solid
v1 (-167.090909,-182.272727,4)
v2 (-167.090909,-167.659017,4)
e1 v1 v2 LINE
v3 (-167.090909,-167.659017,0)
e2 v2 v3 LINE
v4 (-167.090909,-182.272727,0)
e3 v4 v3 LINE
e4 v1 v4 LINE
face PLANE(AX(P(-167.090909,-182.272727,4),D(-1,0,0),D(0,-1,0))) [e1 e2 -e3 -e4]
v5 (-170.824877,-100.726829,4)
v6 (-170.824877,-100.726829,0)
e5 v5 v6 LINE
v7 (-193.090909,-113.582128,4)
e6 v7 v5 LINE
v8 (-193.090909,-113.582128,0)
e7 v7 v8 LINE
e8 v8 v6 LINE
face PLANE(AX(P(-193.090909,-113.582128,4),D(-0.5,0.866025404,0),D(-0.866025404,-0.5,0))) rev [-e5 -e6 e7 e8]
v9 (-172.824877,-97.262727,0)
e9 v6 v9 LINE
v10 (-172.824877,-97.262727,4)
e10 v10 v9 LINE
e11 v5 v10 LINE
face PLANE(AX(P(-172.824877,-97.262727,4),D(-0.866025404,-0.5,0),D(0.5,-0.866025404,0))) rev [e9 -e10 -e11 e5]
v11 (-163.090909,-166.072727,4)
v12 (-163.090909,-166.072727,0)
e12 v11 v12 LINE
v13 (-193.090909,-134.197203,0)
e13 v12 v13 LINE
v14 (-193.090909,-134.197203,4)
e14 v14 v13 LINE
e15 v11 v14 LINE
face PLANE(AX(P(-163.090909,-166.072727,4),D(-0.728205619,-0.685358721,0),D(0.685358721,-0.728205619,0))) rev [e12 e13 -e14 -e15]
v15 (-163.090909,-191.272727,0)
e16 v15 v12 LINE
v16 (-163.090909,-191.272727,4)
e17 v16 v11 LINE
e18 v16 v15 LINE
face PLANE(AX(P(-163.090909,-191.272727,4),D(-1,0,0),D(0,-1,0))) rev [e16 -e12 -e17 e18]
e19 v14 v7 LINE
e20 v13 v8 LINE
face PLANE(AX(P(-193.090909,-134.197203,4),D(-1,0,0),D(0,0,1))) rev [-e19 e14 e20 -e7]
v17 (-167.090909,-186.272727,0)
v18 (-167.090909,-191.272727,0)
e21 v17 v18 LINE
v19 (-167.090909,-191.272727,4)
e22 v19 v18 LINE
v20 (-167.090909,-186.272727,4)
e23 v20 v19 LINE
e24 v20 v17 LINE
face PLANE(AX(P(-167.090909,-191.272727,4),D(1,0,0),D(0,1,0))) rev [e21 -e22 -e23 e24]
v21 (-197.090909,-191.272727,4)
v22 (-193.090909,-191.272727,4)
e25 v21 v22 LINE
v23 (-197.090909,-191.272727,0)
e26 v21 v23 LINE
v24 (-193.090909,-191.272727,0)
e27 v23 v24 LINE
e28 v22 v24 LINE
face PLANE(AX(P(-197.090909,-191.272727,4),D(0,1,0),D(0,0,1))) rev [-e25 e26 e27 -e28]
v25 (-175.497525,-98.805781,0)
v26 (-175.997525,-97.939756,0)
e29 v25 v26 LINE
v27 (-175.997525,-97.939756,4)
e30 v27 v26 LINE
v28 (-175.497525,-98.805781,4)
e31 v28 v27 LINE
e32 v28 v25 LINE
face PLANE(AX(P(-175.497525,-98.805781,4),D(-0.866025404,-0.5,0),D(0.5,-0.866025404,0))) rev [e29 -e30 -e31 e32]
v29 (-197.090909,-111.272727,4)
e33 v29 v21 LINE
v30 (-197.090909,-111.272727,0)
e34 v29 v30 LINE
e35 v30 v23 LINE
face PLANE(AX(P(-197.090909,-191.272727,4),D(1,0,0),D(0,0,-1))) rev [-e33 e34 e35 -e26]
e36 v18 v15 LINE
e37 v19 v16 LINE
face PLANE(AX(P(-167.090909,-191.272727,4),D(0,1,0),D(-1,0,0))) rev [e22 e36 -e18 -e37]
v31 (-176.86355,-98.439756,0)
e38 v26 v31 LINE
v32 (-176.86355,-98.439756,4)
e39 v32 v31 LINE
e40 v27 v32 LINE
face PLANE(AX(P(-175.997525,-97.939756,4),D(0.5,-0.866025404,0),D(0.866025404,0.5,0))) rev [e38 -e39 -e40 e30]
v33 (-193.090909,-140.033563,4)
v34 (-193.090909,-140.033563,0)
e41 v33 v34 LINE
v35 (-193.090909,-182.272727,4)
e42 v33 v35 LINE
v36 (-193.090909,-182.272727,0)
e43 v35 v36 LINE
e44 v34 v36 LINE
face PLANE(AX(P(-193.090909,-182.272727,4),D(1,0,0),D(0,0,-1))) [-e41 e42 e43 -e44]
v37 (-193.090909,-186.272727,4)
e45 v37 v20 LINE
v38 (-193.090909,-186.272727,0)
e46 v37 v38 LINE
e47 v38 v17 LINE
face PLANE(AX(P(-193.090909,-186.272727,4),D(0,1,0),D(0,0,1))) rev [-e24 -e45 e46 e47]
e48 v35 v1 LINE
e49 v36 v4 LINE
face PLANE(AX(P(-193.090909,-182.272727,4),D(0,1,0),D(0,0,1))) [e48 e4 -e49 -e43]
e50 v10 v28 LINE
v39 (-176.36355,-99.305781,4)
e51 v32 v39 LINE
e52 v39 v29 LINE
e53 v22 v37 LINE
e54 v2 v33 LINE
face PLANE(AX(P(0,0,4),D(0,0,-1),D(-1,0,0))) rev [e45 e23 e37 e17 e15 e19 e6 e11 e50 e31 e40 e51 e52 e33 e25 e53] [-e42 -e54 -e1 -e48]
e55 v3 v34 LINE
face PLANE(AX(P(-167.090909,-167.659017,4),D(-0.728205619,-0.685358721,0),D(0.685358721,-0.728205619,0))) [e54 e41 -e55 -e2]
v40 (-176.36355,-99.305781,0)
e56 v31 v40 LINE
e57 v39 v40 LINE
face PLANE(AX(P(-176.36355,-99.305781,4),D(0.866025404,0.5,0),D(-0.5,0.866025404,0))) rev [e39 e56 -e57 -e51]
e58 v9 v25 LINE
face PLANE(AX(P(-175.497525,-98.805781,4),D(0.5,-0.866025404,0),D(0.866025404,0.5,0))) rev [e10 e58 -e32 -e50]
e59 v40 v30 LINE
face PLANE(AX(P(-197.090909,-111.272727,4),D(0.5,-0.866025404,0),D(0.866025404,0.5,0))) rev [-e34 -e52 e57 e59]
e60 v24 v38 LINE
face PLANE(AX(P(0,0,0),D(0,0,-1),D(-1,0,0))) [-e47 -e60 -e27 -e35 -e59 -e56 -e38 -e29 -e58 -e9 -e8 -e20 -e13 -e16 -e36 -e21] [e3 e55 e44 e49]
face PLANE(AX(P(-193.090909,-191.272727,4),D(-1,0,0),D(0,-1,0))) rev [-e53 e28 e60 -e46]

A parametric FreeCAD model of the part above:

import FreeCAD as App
import Part
import Sketcher

V = App.Vector
Q = App.Units.Quantity

doc = App.newDocument("Part")
body = doc.addObject("PartDesign::Body", "Body")

# Sketch on XY plane
sketch1 = body.newObject("Sketcher::SketchObject", "Sketch")
sketch1.AttachmentSupport = (doc.getObject("XY_Plane"), [""])
sketch1.MapMode = "FlatFace"
sketch1.addGeometry(Part.LineSegment(V(-163.1, -166.1, 0), V(-193.1, -134.2, 0)), False)
sketch1.addGeometry(Part.LineSegment(V(-193.1, -134.2, 0), V(-193.1, -113.6, 0)), False)
sketch1.addGeometry(Part.LineSegment(V(-193.1, -113.6, 0), V(-170.8, -100.7, 0)), False)
sketch1.addGeometry(Part.LineSegment(V(-170.8, -100.7, 0), V(-172.8, -97.3, 0)), False)
sketch1.addGeometry(Part.LineSegment(V(-172.8, -97.3, 0), V(-175.5, -98.8, 0)), False)
sketch1.addGeometry(Part.LineSegment(V(-175.5, -98.8, 0), V(-176, -97.9, 0)), False)
sketch1.addGeometry(Part.LineSegment(V(-176, -97.9, 0), V(-176.9, -98.4, 0)), False)
sketch1.addGeometry(Part.LineSegment(V(-176.9, -98.4, 0), V(-176.4, -99.3, 0)), False)
sketch1.addGeometry(Part.LineSegment(V(-176.4, -99.3, 0), V(-197.1, -111.3, 0)), False)
sketch1.addGeometry(Part.LineSegment(V(-197.1, -111.3, 0), V(-197.1, -191.3, 0)), False)
sketch1.addGeometry(Part.LineSegment(V(-197.1, -191.3, 0), V(-193.1, -191.3, 0)), False)
sketch1.addGeometry(Part.LineSegment(V(-193.1, -191.3, 0), V(-193.1, -186.3, 0)), False)
sketch1.addGeometry(Part.LineSegment(V(-193.1, -186.3, 0), V(-167.1, -186.3, 0)), False)
sketch1.addGeometry(Part.LineSegment(V(-167.1, -186.3, 0), V(-167.1, -191.3, 0)), False)
sketch1.addGeometry(Part.LineSegment(V(-167.1, -191.3, 0), V(-163.1, -191.3, 0)), False)
sketch1.addGeometry(Part.LineSegment(V(-163.1, -191.3, 0), V(-163.1, -166.1, 0)), False)
sketch1.addGeometry(Part.LineSegment(V(-167.1, -182.3, 0), V(-193.1, -182.3, 0)), False)
sketch1.addGeometry(Part.LineSegment(V(-193.1, -182.3, 0), V(-193.1, -140, 0)), False)
sketch1.addGeometry(Part.LineSegment(V(-193.1, -140, 0), V(-167.1, -167.7, 0)), False)
sketch1.addGeometry(Part.LineSegment(V(-167.1, -167.7, 0), V(-167.1, -182.3, 0)), False)
sketch1.addConstraint(Sketcher.Constraint("Coincident", 0, 2, 1, 1))
sketch1.addConstraint(Sketcher.Constraint("Coincident", 1, 2, 2, 1))
sketch1.addConstraint(Sketcher.Constraint("Coincident", 2, 2, 3, 1))
sketch1.addConstraint(Sketcher.Constraint("Coincident", 3, 2, 4, 1))
sketch1.addConstraint(Sketcher.Constraint("Coincident", 4, 2, 5, 1))
sketch1.addConstraint(Sketcher.Constraint("Coincident", 5, 2, 6, 1))
sketch1.addConstraint(Sketcher.Constraint("Coincident", 6, 2, 7, 1))
sketch1.addConstraint(Sketcher.Constraint("Coincident", 7, 2, 8, 1))
sketch1.addConstraint(Sketcher.Constraint("Coincident", 8, 2, 9, 1))
sketch1.addConstraint(Sketcher.Constraint("Coincident", 9, 2, 10, 1))
sketch1.addConstraint(Sketcher.Constraint("Coincident", 10, 2, 11, 1))
sketch1.addConstraint(Sketcher.Constraint("Coincident", 11, 2, 12, 1))
sketch1.addConstraint(Sketcher.Constraint("Coincident", 12, 2, 13, 1))
sketch1.addConstraint(Sketcher.Constraint("Coincident", 13, 2, 14, 1))
sketch1.addConstraint(Sketcher.Constraint("Coincident", 14, 2, 15, 1))
sketch1.addConstraint(Sketcher.Constraint("Coincident", 15, 2, 0, 1))
sketch1.addConstraint(Sketcher.Constraint("Coincident", 16, 2, 17, 1))
sketch1.addConstraint(Sketcher.Constraint("Coincident", 17, 2, 18, 1))
sketch1.addConstraint(Sketcher.Constraint("Coincident", 18, 2, 19, 1))
sketch1.addConstraint(Sketcher.Constraint("Coincident", 19, 2, 16, 1))
sketch1.addConstraint(Sketcher.Constraint("Vertical", 1))
sketch1.addConstraint(Sketcher.Constraint("Vertical", 9))
sketch1.addConstraint(Sketcher.Constraint("Horizontal", 10))
sketch1.addConstraint(Sketcher.Constraint("Vertical", 11))
sketch1.addConstraint(Sketcher.Constraint("Horizontal", 12))
sketch1.addConstraint(Sketcher.Constraint("Vertical", 13))
sketch1.addConstraint(Sketcher.Constraint("Horizontal", 14))
sketch1.addConstraint(Sketcher.Constraint("Vertical", 15))
sketch1.addConstraint(Sketcher.Constraint("Horizontal", 16))
sketch1.addConstraint(Sketcher.Constraint("Vertical", 17))
sketch1.addConstraint(Sketcher.Constraint("Vertical", 19))
sketch1.addConstraint(Sketcher.Constraint("Perpendicular", 2, 3))
sketch1.addConstraint(Sketcher.Constraint("Perpendicular", 3, 4))
sketch1.addConstraint(Sketcher.Constraint("Perpendicular", 4, 5))
sketch1.addConstraint(Sketcher.Constraint("Perpendicular", 5, 6))
sketch1.addConstraint(Sketcher.Constraint("Perpendicular", 6, 7))
sketch1.addConstraint(Sketcher.Constraint("Perpendicular", 7, 8))
sketch1.addConstraint(Sketcher.Constraint("Parallel", 0, 18))
sketch1.addConstraint(Sketcher.Constraint("Horizontal", 10, 2, 13, 2))
sketch1.addConstraint(Sketcher.Constraint("Vertical", 1, 2, 10, 2))
sketch1.addConstraint(Sketcher.Constraint("Vertical", 11, 2, 16, 2))
sketch1.addConstraint(Sketcher.Constraint("Vertical", 13, 2, 18, 2))
sketch1.addConstraint(Sketcher.Constraint("Equal", 10, 14))
sketch1.addConstraint(Sketcher.Constraint("Equal", 5, 6))
sketch1.addConstraint(Sketcher.Constraint("Equal", 6, 7))
sketch1.addConstraint(Sketcher.Constraint("DistanceX", 10, 1, 10, 2, Q("4 mm")))
sketch1.addConstraint(Sketcher.Constraint("DistanceX", 12, 1, 12, 2, Q("26 mm")))
sketch1.addConstraint(Sketcher.Constraint("DistanceY", 9, 2, 9, 1, Q("80 mm")))
sketch1.addConstraint(Sketcher.Constraint("DistanceY", 11, 1, 11, 2, Q("5 mm")))
sketch1.addConstraint(Sketcher.Constraint("Angle", 2, Q("30 deg")))
sketch1.addConstraint(Sketcher.Constraint("Distance", 3, Q("4 mm")))
sketch1.addConstraint(Sketcher.Constraint("Distance", 5, Q("1 mm")))
sketch1.addConstraint(Sketcher.Constraint("DistanceY", 15, 1, 15, 2, Q("25.2 mm")))
sketch1.addConstraint(Sketcher.Constraint("DistanceY", 11, 2, 16, 2, Q("4 mm")))
sketch1.addConstraint(Sketcher.Constraint("Distance", 2, Q("25.710599 mm")))
sketch1.addConstraint(Sketcher.Constraint("DistanceY", 19, 2, 19, 1, Q("14.61371 mm")))
sketch1.addConstraint(Sketcher.Constraint("DistanceY", 1, 1, 1, 2, Q("20.615075 mm")))
sketch1.addConstraint(Sketcher.Constraint("DistanceX", 0, 2, -1, 1, Q("193.090909 mm")))
sketch1.addConstraint(Sketcher.Constraint("DistanceY", 1, 2, -1, 1, Q("113.582128 mm")))
sketch1.addConstraint(Sketcher.Constraint("DistanceY", 4, 2, -1, 1, Q("98.805781 mm")))
pad1 = body.newObject("PartDesign::Pad", "Pad")
pad1.Profile = sketch1
pad1.Length = 4

doc.recompute()
